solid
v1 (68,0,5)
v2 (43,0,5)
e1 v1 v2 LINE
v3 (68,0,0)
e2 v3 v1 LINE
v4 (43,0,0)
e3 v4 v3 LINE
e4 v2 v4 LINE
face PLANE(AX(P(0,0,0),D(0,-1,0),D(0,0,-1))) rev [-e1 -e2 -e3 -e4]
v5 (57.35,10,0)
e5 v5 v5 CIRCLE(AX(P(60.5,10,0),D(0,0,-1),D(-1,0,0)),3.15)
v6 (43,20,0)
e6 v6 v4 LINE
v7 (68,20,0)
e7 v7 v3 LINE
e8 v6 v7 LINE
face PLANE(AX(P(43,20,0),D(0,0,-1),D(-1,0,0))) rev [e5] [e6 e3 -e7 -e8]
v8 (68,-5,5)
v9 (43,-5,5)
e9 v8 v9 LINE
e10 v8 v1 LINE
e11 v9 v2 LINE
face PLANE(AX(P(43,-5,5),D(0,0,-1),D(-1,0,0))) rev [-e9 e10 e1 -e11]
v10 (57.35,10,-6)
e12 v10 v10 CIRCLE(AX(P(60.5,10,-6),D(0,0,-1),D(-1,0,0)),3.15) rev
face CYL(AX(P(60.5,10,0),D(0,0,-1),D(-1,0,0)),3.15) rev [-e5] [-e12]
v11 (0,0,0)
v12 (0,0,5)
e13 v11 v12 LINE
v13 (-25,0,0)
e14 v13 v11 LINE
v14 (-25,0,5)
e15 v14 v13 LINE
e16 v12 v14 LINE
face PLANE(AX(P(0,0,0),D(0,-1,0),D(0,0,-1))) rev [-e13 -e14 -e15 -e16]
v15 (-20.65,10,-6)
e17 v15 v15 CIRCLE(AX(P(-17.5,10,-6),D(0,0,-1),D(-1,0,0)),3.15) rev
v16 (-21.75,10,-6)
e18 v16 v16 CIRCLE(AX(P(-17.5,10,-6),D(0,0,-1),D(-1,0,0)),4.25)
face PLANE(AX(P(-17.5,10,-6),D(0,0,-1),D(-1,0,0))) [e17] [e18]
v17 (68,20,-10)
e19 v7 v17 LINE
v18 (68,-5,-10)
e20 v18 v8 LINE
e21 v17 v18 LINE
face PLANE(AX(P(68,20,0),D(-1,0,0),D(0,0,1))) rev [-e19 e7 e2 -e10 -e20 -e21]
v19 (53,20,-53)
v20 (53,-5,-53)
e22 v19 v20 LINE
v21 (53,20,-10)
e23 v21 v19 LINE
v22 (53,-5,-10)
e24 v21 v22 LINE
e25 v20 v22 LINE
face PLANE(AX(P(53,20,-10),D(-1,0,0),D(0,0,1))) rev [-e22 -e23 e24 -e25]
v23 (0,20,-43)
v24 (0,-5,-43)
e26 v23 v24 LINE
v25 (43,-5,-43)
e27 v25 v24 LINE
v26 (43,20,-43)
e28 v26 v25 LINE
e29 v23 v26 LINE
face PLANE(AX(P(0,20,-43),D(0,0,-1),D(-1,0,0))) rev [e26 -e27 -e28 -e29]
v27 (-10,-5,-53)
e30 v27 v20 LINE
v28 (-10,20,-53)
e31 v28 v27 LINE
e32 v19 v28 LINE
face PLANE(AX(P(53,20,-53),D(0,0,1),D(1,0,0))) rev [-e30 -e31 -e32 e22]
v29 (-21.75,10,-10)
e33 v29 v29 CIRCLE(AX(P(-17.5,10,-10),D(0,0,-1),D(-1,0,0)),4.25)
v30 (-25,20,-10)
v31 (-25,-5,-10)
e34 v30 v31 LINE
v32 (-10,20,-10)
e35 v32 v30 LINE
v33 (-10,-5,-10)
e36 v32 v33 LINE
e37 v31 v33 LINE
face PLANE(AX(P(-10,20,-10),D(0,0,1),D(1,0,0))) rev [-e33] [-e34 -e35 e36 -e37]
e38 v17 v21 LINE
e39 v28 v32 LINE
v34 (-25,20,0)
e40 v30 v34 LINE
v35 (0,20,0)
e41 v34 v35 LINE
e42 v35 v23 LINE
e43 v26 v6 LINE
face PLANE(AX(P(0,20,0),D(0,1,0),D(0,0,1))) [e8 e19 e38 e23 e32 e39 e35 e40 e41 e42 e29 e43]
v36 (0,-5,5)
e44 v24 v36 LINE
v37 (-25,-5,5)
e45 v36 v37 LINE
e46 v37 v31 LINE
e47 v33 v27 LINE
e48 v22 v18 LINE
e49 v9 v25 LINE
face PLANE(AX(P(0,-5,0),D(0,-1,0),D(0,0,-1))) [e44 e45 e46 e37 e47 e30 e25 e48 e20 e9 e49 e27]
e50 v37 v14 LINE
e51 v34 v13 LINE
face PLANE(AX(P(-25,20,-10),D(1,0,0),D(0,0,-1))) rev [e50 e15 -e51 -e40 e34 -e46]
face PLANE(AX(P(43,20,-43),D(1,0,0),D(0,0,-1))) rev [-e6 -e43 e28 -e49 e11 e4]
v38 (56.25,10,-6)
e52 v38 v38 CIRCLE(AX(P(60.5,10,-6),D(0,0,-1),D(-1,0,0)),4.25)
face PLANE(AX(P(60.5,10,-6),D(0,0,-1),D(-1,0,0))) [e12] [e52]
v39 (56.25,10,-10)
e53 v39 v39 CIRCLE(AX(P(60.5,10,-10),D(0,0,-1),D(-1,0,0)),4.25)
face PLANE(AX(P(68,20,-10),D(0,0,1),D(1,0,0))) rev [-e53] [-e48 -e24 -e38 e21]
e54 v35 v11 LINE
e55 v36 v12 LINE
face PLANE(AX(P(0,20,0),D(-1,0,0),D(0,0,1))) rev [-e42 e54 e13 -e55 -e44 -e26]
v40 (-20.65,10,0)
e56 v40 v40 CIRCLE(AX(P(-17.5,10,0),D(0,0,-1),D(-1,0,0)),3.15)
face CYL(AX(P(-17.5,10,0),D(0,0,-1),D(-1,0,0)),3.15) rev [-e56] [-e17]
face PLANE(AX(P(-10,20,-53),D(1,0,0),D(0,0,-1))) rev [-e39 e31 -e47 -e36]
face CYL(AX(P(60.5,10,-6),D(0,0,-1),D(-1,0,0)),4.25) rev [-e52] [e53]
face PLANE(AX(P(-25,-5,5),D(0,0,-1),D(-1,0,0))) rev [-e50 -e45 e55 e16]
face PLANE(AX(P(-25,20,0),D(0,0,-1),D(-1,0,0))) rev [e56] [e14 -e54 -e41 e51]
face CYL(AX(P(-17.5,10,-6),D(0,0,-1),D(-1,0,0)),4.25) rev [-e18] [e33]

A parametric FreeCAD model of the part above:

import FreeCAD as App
import Part
import Sketcher


def add_polygon(sketch, points):
    """Adds a closed chain of lines whose ends are joined by coincident constraints."""
    first, n = sketch.GeometryCount, len(points)
    for a, b in zip(points, points[1:] + points[:1]):
        sketch.addGeometry(Part.LineSegment(App.Vector(*a, 0), App.Vector(*b, 0)), False)
    for i in range(n):
        sketch.addConstraint(Sketcher.Constraint("Coincident", first + i, 2, first + (i + 1) % n, 1))

doc = App.newDocument("Part")
params = doc.addObject("Spreadsheet::Sheet", "Params")
for row, (alias, value) in enumerate([
    ("sketch1_width", "43 mm"),
    ("sketch1_width2", "25 mm"),
    ("sketch1_width3", "15 mm"),
    ("sketch1_height", "10 mm"),
    ("pad1_length", "20 mm"),
    ("sketch2_diameter", "6.3 mm"),
    ("sketch3_diameter", "8.5 mm"),
    ("pocket2_length", "4 mm"),
    ("sketch4_width", "25 mm"),
    ("sketch4_width2", "15 mm"),
    ("sketch4_width3", "63 mm"),
    ("sketch4_height", "48 mm"),
    ("pad2_length", "5 mm"),
], start=1):
    params.set(f"A{row}", alias)
    params.set(f"B{row}", "=" + value)
    params.setAlias(f"B{row}", alias)

body = doc.addObject("PartDesign::Body", "Body")

# Sketch on XZ plane
sketch1 = doc.addObject("Sketcher::SketchObject", "Sketch")
body.addObject(sketch1)
sketch1.AttachmentSupport = (doc.XZ_Plane, [""])
sketch1.MapMode = "FlatFace"
add_polygon(sketch1, [(0, 0), (0, -43), (43, -43), (43, 0), (68, 0), (68, -10), (53, -10), (53, -53), (-10, -53), (-10, -10), (-25, -10), (-25, 0)])  # lines 0-11
sketch1.addConstraint([
    Sketcher.Constraint("Vertical", 0),
    Sketcher.Constraint("Horizontal", 1),
    Sketcher.Constraint("Vertical", 2),
    Sketcher.Constraint("Horizontal", 3),
    Sketcher.Constraint("Vertical", 4),
    Sketcher.Constraint("Horizontal", 5),
    Sketcher.Constraint("Vertical", 6),
    Sketcher.Constraint("Horizontal", 7),
    Sketcher.Constraint("Vertical", 8),
    Sketcher.Constraint("Horizontal", 9),
    Sketcher.Constraint("Vertical", 10),
    Sketcher.Constraint("Horizontal", 11),
    Sketcher.Constraint("Coincident", 11, 2, -1, 1),
    Sketcher.Constraint("PointOnObject", 2, 2, -1),
    Sketcher.Constraint("Horizontal", 5, 2, 8, 2),
    Sketcher.Constraint("Equal", 5, 9),
    Sketcher.Constraint("Equal", 3, 11),
    Sketcher.Constraint("Equal", 1, 0),
    Sketcher.Constraint("Equal", 2, 6),
    Sketcher.Constraint("DistanceX", 1, 1, 1, 2, 43.0),
    Sketcher.Constraint("DistanceX", 3, 1, 3, 2, 25.0),
    Sketcher.Constraint("DistanceX", 5, 2, 5, 1, 15.0),
    Sketcher.Constraint("DistanceY", 4, 2, 4, 1, 10.0),
])
sketch1.setExpression("Constraints[31]", "Params.sketch1_width")
sketch1.setExpression("Constraints[32]", "Params.sketch1_width2")
sketch1.setExpression("Constraints[33]", "Params.sketch1_width3")
sketch1.setExpression("Constraints[34]", "Params.sketch1_height")
pad1 = doc.addObject("PartDesign::Pad", "Pad")
body.addObject(pad1)
pad1.Profile = sketch1
pad1.setExpression("Length", "Params.pad1_length")
pad1.Reversed = True

# Sketch on XY plane
sketch2 = doc.addObject("Sketcher::SketchObject", "Sketch001")
body.addObject(sketch2)
sketch2.AttachmentSupport = (doc.XY_Plane, [""])
sketch2.MapMode = "FlatFace"
sketch2.AttachmentOffset = App.Placement(App.Vector(0, 0, -10), App.Rotation())
sketch2.addGeometry([
    Part.Circle(App.Vector(60.5, 10, 0), App.Vector(0, 0, 1), 3.1),
    Part.Circle(App.Vector(-17.5, 10, 0), App.Vector(0, 0, 1), 3.1),
], False)
sketch2.addConstraint([
    Sketcher.Constraint("Equal", 0, 1),
    Sketcher.Constraint("Horizontal", 0, 3, 1, 3),
    Sketcher.Constraint("Diameter", 0, 6.3),
    Sketcher.Constraint("DistanceY", -1, 1, 0, 3, 10.0),
    Sketcher.Constraint("DistanceX", 1, 3, 0, 3, 78.0),
    Sketcher.Constraint("DistanceX", -1, 1, 0, 3, 60.5),
])
sketch2.setExpression("Constraints[2]", "Params.sketch2_diameter")
pocket1 = doc.addObject("PartDesign::Pocket", "Pocket")
body.addObject(pocket1)
pocket1.Profile = sketch2
pocket1.Type = "ThroughAll"
pocket1.Reversed = True

# Sketch on XY plane
sketch3 = doc.addObject("Sketcher::SketchObject", "Sketch002")
body.addObject(sketch3)
sketch3.AttachmentSupport = (doc.XY_Plane, [""])
sketch3.MapMode = "FlatFace"
sketch3.AttachmentOffset = App.Placement(App.Vector(0, 0, -10), App.Rotation())
sketch3.addGeometry([
    Part.Circle(App.Vector(-17.5, 10, 0), App.Vector(0, 0, 1), 4.2),
    Part.Circle(App.Vector(60.5, 10, 0), App.Vector(0, 0, 1), 4.2),
], False)
sketch3.addConstraint([
    Sketcher.Constraint("Equal", 0, 1),
    Sketcher.Constraint("Horizontal", 0, 3, 1, 3),
    Sketcher.Constraint("Diameter", 0, 8.5),
    Sketcher.Constraint("DistanceY", -1, 1, 0, 3, 10.0),
    Sketcher.Constraint("DistanceX", 0, 3, 1, 3, 78.0),
    Sketcher.Constraint("DistanceX", 0, 3, -1, 1, 17.5),
])
sketch3.setExpression("Constraints[2]", "Params.sketch3_diameter")
pocket2 = doc.addObject("PartDesign::Pocket", "Pocket001")
body.addObject(pocket2)
pocket2.Profile = sketch3
pocket2.setExpression("Length", "Params.pocket2_length")
pocket2.Reversed = True

# Sketch on XZ plane
sketch4 = doc.addObject("Sketcher::SketchObject", "Sketch003")
body.addObject(sketch4)
sketch4.AttachmentSupport = (doc.XZ_Plane, [""])
sketch4.MapMode = "FlatFace"
add_polygon(sketch4, [(0, 5), (-25, 5), (-25, -10), (-10, -10), (-10, -53), (53, -53), (53, -10), (68, -10), (68, 5), (43, 5), (43, -43), (0, -43)])  # lines 0-11
sketch4.addConstraint([
    Sketcher.Constraint("Horizontal", 0),
    Sketcher.Constraint("Vertical", 1),
    Sketcher.Constraint("Horizontal", 2),
    Sketcher.Constraint("Vertical", 3),
    Sketcher.Constraint("Horizontal", 4),
    Sketcher.Constraint("Vertical", 5),
    Sketcher.Constraint("Horizontal", 6),
    Sketcher.Constraint("Vertical", 7),
    Sketcher.Constraint("Horizontal", 8),
    Sketcher.Constraint("Vertical", 9),
    Sketcher.Constraint("Horizontal", 10),
    Sketcher.Constraint("Vertical", 11),
    Sketcher.Constraint("PointOnObject", 10, 2, -2),
    Sketcher.Constraint("Horizontal", 2, 2, 5, 2),
    Sketcher.Constraint("Horizontal", 0, 2, 7, 2),
    Sketcher.Constraint("Equal", 2, 6),
    Sketcher.Constraint("Equal", 0, 8),
    Sketcher.Constraint("Equal", 6, 1),
    Sketcher.Constraint("Equal", 10, 3),
    Sketcher.Constraint("DistanceX", 0, 2, 0, 1, 25.0),
    Sketcher.Constraint("DistanceX", 2, 1, 2, 2, 15.0),
    Sketcher.Constraint("DistanceX", 4, 1, 4, 2, 63.0),
    Sketcher.Constraint("DistanceY", 9, 2, 9, 1, 48.0),
    Sketcher.Constraint("DistanceY", -1, 1, 0, 2, 5.0),
])
sketch4.setExpression("Constraints[31]", "Params.sketch4_width")
sketch4.setExpression("Constraints[32]", "Params.sketch4_width2")
sketch4.setExpression("Constraints[33]", "Params.sketch4_width3")
sketch4.setExpression("Constraints[34]", "Params.sketch4_height")
pad2 = doc.addObject("PartDesign::Pad", "Pad001")
body.addObject(pad2)
pad2.Profile = sketch4
pad2.setExpression("Length", "Params.pad2_length")

doc.recompute()
